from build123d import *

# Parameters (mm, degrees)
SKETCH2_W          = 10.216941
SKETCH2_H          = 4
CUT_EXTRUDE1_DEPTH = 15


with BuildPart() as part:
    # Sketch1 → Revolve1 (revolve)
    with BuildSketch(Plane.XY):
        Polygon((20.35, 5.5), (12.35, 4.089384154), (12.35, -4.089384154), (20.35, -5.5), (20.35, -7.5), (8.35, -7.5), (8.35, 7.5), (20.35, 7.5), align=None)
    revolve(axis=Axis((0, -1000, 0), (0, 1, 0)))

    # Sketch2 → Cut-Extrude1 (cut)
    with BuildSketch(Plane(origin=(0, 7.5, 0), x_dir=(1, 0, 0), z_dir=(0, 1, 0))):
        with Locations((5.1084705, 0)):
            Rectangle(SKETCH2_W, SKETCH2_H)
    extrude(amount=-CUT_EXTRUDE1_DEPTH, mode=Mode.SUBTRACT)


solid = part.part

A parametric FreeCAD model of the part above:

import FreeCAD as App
import Part
import Sketcher

V = App.Vector
Q = App.Units.Quantity

doc = App.newDocument("Part")
params = doc.addObject("Spreadsheet::Sheet", "Params")
for row, (alias, value) in enumerate([
    ("sketch1_width", "12 mm"),
    ("sketch1_height", "2 mm"),
    ("sketch1_height2", "15 mm"),
    ("revolution_angle", "360 deg"),
    ("sketch2_height", "4 mm"),
    ("pocket1_length", "15 mm"),
], start=1):
    params.set(f"A{row}", alias)
    params.set(f"B{row}", "=" + value)
    params.setAlias(f"B{row}", alias)

body = doc.addObject("PartDesign::Body", "Body")

sketch1 = body.newObject("Sketcher::SketchObject", "Sketch")
sketch1.AttachmentSupport = (doc.getObject("XY_Plane"), [""])
sketch1.MapMode = "FlatFace"
sketch1.addGeometry(Part.LineSegment(V(12.3, 4.1, 0), V(20.4, 5.5, 0)), False)
sketch1.addGeometry(Part.LineSegment(V(20.4, 5.5, 0), V(20.4, 7.5, 0)), False)
sketch1.addGeometry(Part.LineSegment(V(20.4, 7.5, 0), V(8.3, 7.5, 0)), False)
sketch1.addGeometry(Part.LineSegment(V(8.3, 7.5, 0), V(8.3, -7.5, 0)), False)
sketch1.addGeometry(Part.LineSegment(V(8.3, -7.5, 0), V(20.4, -7.5, 0)), False)
sketch1.addGeometry(Part.LineSegment(V(20.4, -7.5, 0), V(20.4, -5.5, 0)), False)
sketch1.addGeometry(Part.LineSegment(V(20.4, -5.5, 0), V(12.3, -4.1, 0)), False)
sketch1.addGeometry(Part.LineSegment(V(12.3, -4.1, 0), V(12.3, 4.1, 0)), False)
sketch1.addConstraint(Sketcher.Constraint("Coincident", 0, 2, 1, 1))
sketch1.addConstraint(Sketcher.Constraint("Coincident", 1, 2, 2, 1))
sketch1.addConstraint(Sketcher.Constraint("Coincident", 2, 2, 3, 1))
sketch1.addConstraint(Sketcher.Constraint("Coincident", 3, 2, 4, 1))
sketch1.addConstraint(Sketcher.Constraint("Coincident", 4, 2, 5, 1))
sketch1.addConstraint(Sketcher.Constraint("Coincident", 5, 2, 6, 1))
sketch1.addConstraint(Sketcher.Constraint("Coincident", 6, 2, 7, 1))
sketch1.addConstraint(Sketcher.Constraint("Coincident", 7, 2, 0, 1))
sketch1.addConstraint(Sketcher.Constraint("Vertical", 1))
sketch1.addConstraint(Sketcher.Constraint("Horizontal", 2))
sketch1.addConstraint(Sketcher.Constraint("Vertical", 3))
sketch1.addConstraint(Sketcher.Constraint("Horizontal", 4))
sketch1.addConstraint(Sketcher.Constraint("Vertical", 5))
sketch1.addConstraint(Sketcher.Constraint("Vertical", 7))
sketch1.addConstraint(Sketcher.Constraint("Symmetric", 1, 2, 4, 2, -1))
sketch1.addConstraint(Sketcher.Constraint("Equal", 1, 5))
sketch1.addConstraint(Sketcher.Constraint("Equal", 0, 6))
sketch1.addConstraint(Sketcher.Constraint("DistanceX", 2, 2, 2, 1, Q("12 mm")))
sketch1.addConstraint(Sketcher.Constraint("DistanceY", 1, 1, 1, 2, Q("2 mm")))
sketch1.addConstraint(Sketcher.Constraint("DistanceY", 3, 2, 3, 1, Q("15 mm")))
sketch1.addConstraint(Sketcher.Constraint("Angle", 0, Q("10 deg")))
sketch1.addConstraint(Sketcher.Constraint("DistanceX", 3, 2, 6, 2, Q("4 mm")))
sketch1.addConstraint(Sketcher.Constraint("DistanceX", -1, 1, 0, 2, Q("20.35 mm")))
sketch1.setExpression("Constraints[17]", "Params.sketch1_width")
sketch1.setExpression("Constraints[18]", "Params.sketch1_height")
sketch1.setExpression("Constraints[19]", "Params.sketch1_height2")
revolution = body.newObject("PartDesign::Revolution", "Revolution")
revolution.Profile = sketch1
revolution.ReferenceAxis = (sketch1, ["V_Axis"])
revolution.setExpression("Angle", "Params.revolution_angle")

sketch2 = body.newObject("Sketcher::SketchObject", "Sketch001")
sketch2.AttachmentSupport = (doc.getObject("XZ_Plane"), [""])
sketch2.MapMode = "FlatFace"
sketch2.AttachmentOffset = App.Placement(V(0, 0, -7.5), App.Rotation())
sketch2.addGeometry(Part.LineSegment(V(0, -2, 0), V(0, 2, 0)), False)
sketch2.addGeometry(Part.LineSegment(V(0, 2, 0), V(10.2, 2, 0)), False)
sketch2.addGeometry(Part.LineSegment(V(10.2, 2, 0), V(10.2, -2, 0)), False)
sketch2.addGeometry(Part.LineSegment(V(10.2, -2, 0), V(0, -2, 0)), False)
sketch2.addConstraint(Sketcher.Constraint("Coincident", 0, 2, 1, 1))
sketch2.addConstraint(Sketcher.Constraint("Coincident", 1, 2, 2, 1))
sketch2.addConstraint(Sketcher.Constraint("Coincident", 2, 2, 3, 1))
sketch2.addConstraint(Sketcher.Constraint("Coincident", 3, 2, 0, 1))
sketch2.addConstraint(Sketcher.Constraint("Vertical", 0))
sketch2.addConstraint(Sketcher.Constraint("Horizontal", 1))
sketch2.addConstraint(Sketcher.Constraint("Vertical", 2))
sketch2.addConstraint(Sketcher.Constraint("Horizontal", 3))
sketch2.addConstraint(Sketcher.Constraint("Symmetric", 0, 2, 3, 2, -1, 1))
sketch2.addConstraint(Sketcher.Constraint("DistanceY", 0, 1, 0, 2, Q("4 mm")))
sketch2.addConstraint(Sketcher.Constraint("DistanceX", 1, 1, 1, 2, Q("10.216941 mm")))
sketch2.setExpression("Constraints[9]", "Params.sketch2_height")
pocket1 = body.newObject("PartDesign::Pocket", "Pocket")
pocket1.Profile = sketch2
pocket1.setExpression("Length", "Params.pocket1_length")
pocket1.Reversed = True

doc.recompute()
